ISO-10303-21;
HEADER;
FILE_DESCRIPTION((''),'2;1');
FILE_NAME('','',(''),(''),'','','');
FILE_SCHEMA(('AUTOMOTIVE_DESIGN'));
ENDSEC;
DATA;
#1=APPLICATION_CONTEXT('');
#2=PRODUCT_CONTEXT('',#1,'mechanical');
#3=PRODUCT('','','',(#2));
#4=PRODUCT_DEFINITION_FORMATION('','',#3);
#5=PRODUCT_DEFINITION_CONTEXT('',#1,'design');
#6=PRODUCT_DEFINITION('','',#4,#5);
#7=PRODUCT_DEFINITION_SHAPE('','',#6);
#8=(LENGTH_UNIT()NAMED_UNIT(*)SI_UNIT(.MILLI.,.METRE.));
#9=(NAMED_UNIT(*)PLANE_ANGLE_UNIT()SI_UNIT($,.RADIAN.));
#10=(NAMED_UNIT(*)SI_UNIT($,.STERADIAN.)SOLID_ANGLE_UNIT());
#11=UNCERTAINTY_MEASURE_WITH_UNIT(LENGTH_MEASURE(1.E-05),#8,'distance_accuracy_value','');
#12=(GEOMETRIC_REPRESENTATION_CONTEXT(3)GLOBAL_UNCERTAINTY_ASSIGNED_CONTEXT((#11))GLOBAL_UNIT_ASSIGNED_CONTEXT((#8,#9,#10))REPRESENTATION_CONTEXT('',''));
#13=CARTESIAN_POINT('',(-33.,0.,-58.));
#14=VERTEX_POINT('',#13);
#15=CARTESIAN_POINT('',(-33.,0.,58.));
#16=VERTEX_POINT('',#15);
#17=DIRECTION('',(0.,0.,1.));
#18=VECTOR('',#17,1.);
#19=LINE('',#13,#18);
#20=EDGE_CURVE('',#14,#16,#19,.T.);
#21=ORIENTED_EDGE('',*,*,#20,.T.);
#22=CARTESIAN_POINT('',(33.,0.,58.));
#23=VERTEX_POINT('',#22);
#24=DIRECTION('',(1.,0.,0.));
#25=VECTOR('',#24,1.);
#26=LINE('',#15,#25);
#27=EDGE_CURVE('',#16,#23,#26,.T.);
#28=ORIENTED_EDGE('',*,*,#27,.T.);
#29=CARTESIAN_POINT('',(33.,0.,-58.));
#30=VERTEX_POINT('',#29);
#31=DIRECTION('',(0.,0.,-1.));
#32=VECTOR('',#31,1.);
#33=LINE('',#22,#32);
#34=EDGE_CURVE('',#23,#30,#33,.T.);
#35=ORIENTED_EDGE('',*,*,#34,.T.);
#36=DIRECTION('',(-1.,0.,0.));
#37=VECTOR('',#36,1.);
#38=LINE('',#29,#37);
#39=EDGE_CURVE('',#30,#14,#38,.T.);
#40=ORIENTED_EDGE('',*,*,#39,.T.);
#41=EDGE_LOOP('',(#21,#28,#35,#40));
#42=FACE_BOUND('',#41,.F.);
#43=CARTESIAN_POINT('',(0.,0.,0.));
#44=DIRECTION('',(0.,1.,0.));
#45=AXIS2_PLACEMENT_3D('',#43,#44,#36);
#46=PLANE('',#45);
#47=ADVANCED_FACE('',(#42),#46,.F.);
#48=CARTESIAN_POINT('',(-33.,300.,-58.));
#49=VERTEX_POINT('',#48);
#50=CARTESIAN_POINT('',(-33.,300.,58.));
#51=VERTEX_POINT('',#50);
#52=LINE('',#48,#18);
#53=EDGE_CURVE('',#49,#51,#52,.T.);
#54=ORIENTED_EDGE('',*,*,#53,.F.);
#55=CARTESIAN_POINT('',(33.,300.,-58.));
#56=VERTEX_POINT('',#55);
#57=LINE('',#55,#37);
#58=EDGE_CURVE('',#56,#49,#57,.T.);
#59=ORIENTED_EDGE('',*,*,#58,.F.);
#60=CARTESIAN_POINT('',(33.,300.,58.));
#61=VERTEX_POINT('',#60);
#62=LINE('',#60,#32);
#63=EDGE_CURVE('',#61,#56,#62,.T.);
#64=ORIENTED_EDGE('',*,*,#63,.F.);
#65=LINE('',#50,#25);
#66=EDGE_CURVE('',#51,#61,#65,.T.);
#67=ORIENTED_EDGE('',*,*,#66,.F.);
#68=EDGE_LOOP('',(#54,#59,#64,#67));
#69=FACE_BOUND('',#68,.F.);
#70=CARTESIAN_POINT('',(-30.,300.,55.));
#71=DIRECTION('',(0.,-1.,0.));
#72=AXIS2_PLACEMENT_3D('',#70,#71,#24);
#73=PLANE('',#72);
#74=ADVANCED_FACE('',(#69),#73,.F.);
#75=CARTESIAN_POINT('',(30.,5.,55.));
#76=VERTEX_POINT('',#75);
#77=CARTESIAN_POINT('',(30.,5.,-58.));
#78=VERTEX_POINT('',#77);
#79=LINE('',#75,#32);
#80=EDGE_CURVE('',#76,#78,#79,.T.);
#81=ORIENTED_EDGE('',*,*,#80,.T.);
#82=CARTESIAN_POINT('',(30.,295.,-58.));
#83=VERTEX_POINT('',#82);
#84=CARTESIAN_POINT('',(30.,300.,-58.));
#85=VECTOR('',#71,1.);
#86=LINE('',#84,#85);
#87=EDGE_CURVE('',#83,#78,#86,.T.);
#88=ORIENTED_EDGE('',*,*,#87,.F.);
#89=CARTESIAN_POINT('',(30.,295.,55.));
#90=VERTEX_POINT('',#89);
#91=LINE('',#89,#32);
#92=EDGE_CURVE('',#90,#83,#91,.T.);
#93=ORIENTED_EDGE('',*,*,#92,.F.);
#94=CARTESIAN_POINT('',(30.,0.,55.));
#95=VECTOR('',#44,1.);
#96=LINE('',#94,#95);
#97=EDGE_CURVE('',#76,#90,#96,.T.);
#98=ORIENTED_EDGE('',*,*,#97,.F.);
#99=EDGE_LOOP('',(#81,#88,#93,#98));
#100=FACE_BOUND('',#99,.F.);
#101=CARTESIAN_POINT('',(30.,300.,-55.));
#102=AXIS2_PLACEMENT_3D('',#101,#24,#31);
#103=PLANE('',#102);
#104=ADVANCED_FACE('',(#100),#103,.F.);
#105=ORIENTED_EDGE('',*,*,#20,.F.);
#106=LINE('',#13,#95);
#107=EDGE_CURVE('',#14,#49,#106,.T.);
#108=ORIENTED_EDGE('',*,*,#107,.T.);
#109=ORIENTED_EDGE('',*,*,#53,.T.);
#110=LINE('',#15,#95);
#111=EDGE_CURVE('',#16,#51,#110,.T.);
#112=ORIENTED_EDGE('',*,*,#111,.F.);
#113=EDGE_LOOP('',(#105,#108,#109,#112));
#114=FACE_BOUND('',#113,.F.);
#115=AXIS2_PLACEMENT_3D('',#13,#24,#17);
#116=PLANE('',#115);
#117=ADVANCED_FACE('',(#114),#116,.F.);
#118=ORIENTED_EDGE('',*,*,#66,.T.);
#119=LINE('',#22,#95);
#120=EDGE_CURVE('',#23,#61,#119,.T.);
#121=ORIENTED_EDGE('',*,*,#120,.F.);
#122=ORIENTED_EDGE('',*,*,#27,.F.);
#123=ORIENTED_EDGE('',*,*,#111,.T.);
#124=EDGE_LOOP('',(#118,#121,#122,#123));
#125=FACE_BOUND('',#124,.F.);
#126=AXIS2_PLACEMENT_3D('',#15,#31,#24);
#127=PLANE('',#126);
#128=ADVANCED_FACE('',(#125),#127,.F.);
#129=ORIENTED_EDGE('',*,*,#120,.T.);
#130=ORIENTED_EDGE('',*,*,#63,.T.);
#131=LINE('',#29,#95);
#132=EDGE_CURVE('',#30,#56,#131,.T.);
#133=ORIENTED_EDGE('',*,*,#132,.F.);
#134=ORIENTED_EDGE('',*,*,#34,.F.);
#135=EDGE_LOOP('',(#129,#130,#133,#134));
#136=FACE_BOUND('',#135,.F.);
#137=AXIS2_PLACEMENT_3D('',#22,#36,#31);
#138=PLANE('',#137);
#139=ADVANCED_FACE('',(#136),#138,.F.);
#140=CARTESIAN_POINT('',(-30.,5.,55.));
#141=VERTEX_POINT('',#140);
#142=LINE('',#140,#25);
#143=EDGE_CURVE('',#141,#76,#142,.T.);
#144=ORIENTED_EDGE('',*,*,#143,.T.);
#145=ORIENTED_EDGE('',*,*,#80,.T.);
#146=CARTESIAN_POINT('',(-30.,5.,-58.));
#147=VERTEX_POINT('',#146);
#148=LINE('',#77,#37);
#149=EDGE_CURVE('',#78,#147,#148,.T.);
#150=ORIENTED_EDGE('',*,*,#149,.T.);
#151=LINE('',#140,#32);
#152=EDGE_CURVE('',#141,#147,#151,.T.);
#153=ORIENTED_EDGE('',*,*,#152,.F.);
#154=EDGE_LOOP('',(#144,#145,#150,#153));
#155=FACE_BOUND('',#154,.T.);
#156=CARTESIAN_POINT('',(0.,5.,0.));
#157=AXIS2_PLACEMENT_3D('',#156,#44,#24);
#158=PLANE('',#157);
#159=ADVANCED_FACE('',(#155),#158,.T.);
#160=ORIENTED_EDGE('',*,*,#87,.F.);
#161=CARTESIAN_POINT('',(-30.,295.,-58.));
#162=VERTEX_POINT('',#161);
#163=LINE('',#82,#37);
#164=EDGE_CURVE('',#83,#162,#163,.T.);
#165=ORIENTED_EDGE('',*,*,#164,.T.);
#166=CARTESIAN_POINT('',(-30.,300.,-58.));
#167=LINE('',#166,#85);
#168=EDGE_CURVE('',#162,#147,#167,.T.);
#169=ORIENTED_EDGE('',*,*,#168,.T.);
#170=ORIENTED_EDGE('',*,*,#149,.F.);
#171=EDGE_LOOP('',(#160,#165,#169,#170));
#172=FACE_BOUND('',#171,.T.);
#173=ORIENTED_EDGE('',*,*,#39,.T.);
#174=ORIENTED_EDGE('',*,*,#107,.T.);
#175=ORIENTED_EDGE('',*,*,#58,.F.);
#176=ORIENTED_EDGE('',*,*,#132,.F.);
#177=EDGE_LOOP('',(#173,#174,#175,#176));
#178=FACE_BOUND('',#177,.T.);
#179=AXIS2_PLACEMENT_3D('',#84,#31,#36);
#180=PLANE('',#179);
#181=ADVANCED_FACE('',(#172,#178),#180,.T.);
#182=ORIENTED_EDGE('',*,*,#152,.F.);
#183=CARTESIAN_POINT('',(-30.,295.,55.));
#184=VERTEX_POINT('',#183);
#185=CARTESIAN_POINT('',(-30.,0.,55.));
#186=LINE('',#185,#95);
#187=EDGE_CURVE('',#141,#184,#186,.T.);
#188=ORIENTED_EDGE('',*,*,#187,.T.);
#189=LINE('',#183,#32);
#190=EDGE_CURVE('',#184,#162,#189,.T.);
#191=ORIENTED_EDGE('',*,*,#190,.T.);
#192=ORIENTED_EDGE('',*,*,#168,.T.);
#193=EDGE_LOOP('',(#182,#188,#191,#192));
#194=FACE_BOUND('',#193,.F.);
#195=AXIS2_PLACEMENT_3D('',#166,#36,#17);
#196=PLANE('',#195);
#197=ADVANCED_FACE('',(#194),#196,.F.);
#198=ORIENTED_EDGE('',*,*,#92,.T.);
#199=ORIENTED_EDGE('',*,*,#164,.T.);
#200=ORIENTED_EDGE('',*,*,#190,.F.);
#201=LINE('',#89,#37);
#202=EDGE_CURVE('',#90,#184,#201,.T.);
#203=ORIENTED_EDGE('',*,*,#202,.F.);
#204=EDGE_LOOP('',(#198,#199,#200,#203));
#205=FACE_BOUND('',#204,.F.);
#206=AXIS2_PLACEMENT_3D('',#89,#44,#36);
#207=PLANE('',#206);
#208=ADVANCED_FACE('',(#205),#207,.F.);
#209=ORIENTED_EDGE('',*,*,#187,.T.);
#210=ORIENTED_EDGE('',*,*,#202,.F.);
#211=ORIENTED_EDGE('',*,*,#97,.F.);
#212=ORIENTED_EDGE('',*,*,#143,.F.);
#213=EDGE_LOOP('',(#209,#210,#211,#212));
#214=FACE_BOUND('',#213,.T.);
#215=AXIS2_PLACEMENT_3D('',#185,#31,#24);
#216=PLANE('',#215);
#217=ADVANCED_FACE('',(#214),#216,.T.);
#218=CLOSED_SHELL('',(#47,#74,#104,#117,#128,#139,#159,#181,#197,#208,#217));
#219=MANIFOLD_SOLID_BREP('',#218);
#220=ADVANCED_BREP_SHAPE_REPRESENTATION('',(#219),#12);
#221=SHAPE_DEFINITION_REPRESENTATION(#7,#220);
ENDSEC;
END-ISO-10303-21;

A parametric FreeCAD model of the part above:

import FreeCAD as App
import Part
import Sketcher

doc = App.newDocument("Part")
body = doc.addObject("PartDesign::Body", "Body")

# Sketch on XZ plane
sketch1 = body.newObject("Sketcher::SketchObject", "Sketch")
sketch1.AttachmentSupport = (doc.getObject("XZ_Plane"), [""])
sketch1.MapMode = "FlatFace"
sketch1.addGeometry([
    Part.LineSegment(App.Vector(-33, -58, 0), App.Vector(-33, 58, 0)),  # 0
    Part.LineSegment(App.Vector(-33, 58, 0), App.Vector(33, 58, 0)),  # 1
    Part.LineSegment(App.Vector(33, 58, 0), App.Vector(33, -58, 0)),  # 2
    Part.LineSegment(App.Vector(33, -58, 0), App.Vector(-33, -58, 0)),  # 3
    Part.LineSegment(App.Vector(30, 55, 0), App.Vector(-30, 55, 0)),  # 4
    Part.LineSegment(App.Vector(-30, 55, 0), App.Vector(-30, -55, 0)),  # 5
    Part.LineSegment(App.Vector(-30, -55, 0), App.Vector(30, -55, 0)),  # 6
    Part.LineSegment(App.Vector(30, -55, 0), App.Vector(30, 55, 0)),  # 7
], False)
sketch1.addConstraint([
    Sketcher.Constraint("Coincident", 0, 2, 1, 1),
    Sketcher.Constraint("Coincident", 1, 2, 2, 1),
    Sketcher.Constraint("Coincident", 2, 2, 3, 1),
    Sketcher.Constraint("Coincident", 3, 2, 0, 1),
    Sketcher.Constraint("Coincident", 4, 2, 5, 1),
    Sketcher.Constraint("Coincident", 5, 2, 6, 1),
    Sketcher.Constraint("Coincident", 6, 2, 7, 1),
    Sketcher.Constraint("Coincident", 7, 2, 4, 1),
    Sketcher.Constraint("Vertical", 0),
    Sketcher.Constraint("Horizontal", 1),
    Sketcher.Constraint("Vertical", 2),
    Sketcher.Constraint("Horizontal", 3),
    Sketcher.Constraint("Horizontal", 4),
    Sketcher.Constraint("Vertical", 5),
    Sketcher.Constraint("Horizontal", 6),
    Sketcher.Constraint("Vertical", 7),
    Sketcher.Constraint("Symmetric", 0, 2, 2, 2, -1, 1),
    Sketcher.Constraint("Symmetric", 4, 2, 6, 2, -1, 1),
    Sketcher.Constraint("DistanceX", 4, 2, 4, 1, 60.0),
    Sketcher.Constraint("DistanceY", 5, 2, 5, 1, 110.0),
    Sketcher.Constraint("DistanceX", 0, 2, 4, 2, 3.0),
    Sketcher.Constraint("DistanceY", 4, 2, 0, 2, 3.0),
])
pad1 = body.newObject("PartDesign::Pad", "Pad")
pad1.Profile = sketch1
pad1.Length = 300
pad1.Reversed = True

# Sketch on XZ plane
sketch2 = body.newObject("Sketcher::SketchObject", "Sketch001")
sketch2.AttachmentSupport = (doc.getObject("XZ_Plane"), [""])
sketch2.MapMode = "FlatFace"
sketch2.AttachmentOffset = App.Placement(App.Vector(0, 0, -300), App.Rotation())
sketch2.addGeometry([
    Part.LineSegment(App.Vector(-30, -58, 0), App.Vector(-30, -55, 0)),
    Part.LineSegment(App.Vector(-30, -55, 0), App.Vector(30, -55, 0)),
    Part.LineSegment(App.Vector(30, -55, 0), App.Vector(30, -58, 0)),
    Part.LineSegment(App.Vector(30, -58, 0), App.Vector(-30, -58, 0)),
], False)
sketch2.addConstraint([
    Sketcher.Constraint("Coincident", 0, 2, 1, 1),
    Sketcher.Constraint("Coincident", 1, 2, 2, 1),
    Sketcher.Constraint("Coincident", 2, 2, 3, 1),
    Sketcher.Constraint("Coincident", 3, 2, 0, 1),
    Sketcher.Constraint("Vertical", 0),
    Sketcher.Constraint("Horizontal", 1),
    Sketcher.Constraint("Vertical", 2),
    Sketcher.Constraint("Horizontal", 3),
    Sketcher.Constraint("DistanceX", 1, 1, 1, 2, 60.0),
    Sketcher.Constraint("DistanceY", 0, 1, 0, 2, 3.0),
    Sketcher.Constraint("DistanceX", 0, 2, -1, 1, 30.0),
    Sketcher.Constraint("DistanceY", 0, 2, -1, 1, 55.0),
])
pocket1 = body.newObject("PartDesign::Pocket", "Pocket")
pocket1.Profile = sketch2
pocket1.Length = 295
pocket1.Reversed = True

# Sketch on XZ plane
sketch3 = body.newObject("Sketcher::SketchObject", "Sketch002")
sketch3.AttachmentSupport = (doc.getObject("XZ_Plane"), [""])
sketch3.MapMode = "FlatFace"
sketch3.addGeometry([
    Part.LineSegment(App.Vector(-30, -55, 0), App.Vector(-30, 55, 0)),
    Part.LineSegment(App.Vector(-30, 55, 0), App.Vector(30, 55, 0)),
    Part.LineSegment(App.Vector(30, 55, 0), App.Vector(30, -55, 0)),
    Part.LineSegment(App.Vector(30, -55, 0), App.Vector(-30, -55, 0)),
], False)
sketch3.addConstraint([
    Sketcher.Constraint("Coincident", 0, 2, 1, 1),
    Sketcher.Constraint("Coincident", 1, 2, 2, 1),
    Sketcher.Constraint("Coincident", 2, 2, 3, 1),
    Sketcher.Constraint("Coincident", 3, 2, 0, 1),
    Sketcher.Constraint("Vertical", 0),
    Sketcher.Constraint("Horizontal", 1),
    Sketcher.Constraint("Vertical", 2),
    Sketcher.Constraint("Horizontal", 3),
    Sketcher.Constraint("Symmetric", 0, 2, 2, 2, -1, 1),
    Sketcher.Constraint("DistanceX", 1, 1, 1, 2, 60.0),
    Sketcher.Constraint("DistanceY", 0, 1, 0, 2, 110.0),
])
pad2 = body.newObject("PartDesign::Pad", "Pad001")
pad2.Profile = sketch3
pad2.Length = 5
pad2.Reversed = True

# Sketch on XY plane
sketch4 = body.newObject("Sketcher::SketchObject", "Sketch003")
sketch4.AttachmentSupport = (doc.getObject("XY_Plane"), [""])
sketch4.MapMode = "FlatFace"
sketch4.AttachmentOffset = App.Placement(App.Vector(0, 0, 55), App.Rotation())
sketch4.addGeometry([
    Part.LineSegment(App.Vector(30, 300, 0), App.Vector(30, 295, 0)),
    Part.LineSegment(App.Vector(30, 295, 0), App.Vector(-30, 295, 0)),
    Part.LineSegment(App.Vector(-30, 295, 0), App.Vector(-30, 300, 0)),
    Part.LineSegment(App.Vector(-30, 300, 0), App.Vector(30, 300, 0)),
], False)
sketch4.addConstraint([
    Sketcher.Constraint("Coincident", 0, 2, 1, 1),
    Sketcher.Constraint("Coincident", 1, 2, 2, 1),
    Sketcher.Constraint("Coincident", 2, 2, 3, 1),
    Sketcher.Constraint("Coincident", 3, 2, 0, 1),
    Sketcher.Constraint("Vertical", 0),
    Sketcher.Constraint("Horizontal", 1),
    Sketcher.Constraint("Vertical", 2),
    Sketcher.Constraint("Horizontal", 3),
    Sketcher.Constraint("DistanceY", 0, 2, 0, 1, 5.0),
    Sketcher.Constraint("DistanceX", 1, 2, 1, 1, 60.0),
    Sketcher.Constraint("DistanceX", -1, 1, 0, 2, 30.0),
    Sketcher.Constraint("DistanceY", -1, 1, 0, 2, 295.0),
])
pad3 = body.newObject("PartDesign::Pad", "Pad002")
pad3.Profile = sketch4
pad3.Length = 113
pad3.Reversed = True

doc.recompute()
